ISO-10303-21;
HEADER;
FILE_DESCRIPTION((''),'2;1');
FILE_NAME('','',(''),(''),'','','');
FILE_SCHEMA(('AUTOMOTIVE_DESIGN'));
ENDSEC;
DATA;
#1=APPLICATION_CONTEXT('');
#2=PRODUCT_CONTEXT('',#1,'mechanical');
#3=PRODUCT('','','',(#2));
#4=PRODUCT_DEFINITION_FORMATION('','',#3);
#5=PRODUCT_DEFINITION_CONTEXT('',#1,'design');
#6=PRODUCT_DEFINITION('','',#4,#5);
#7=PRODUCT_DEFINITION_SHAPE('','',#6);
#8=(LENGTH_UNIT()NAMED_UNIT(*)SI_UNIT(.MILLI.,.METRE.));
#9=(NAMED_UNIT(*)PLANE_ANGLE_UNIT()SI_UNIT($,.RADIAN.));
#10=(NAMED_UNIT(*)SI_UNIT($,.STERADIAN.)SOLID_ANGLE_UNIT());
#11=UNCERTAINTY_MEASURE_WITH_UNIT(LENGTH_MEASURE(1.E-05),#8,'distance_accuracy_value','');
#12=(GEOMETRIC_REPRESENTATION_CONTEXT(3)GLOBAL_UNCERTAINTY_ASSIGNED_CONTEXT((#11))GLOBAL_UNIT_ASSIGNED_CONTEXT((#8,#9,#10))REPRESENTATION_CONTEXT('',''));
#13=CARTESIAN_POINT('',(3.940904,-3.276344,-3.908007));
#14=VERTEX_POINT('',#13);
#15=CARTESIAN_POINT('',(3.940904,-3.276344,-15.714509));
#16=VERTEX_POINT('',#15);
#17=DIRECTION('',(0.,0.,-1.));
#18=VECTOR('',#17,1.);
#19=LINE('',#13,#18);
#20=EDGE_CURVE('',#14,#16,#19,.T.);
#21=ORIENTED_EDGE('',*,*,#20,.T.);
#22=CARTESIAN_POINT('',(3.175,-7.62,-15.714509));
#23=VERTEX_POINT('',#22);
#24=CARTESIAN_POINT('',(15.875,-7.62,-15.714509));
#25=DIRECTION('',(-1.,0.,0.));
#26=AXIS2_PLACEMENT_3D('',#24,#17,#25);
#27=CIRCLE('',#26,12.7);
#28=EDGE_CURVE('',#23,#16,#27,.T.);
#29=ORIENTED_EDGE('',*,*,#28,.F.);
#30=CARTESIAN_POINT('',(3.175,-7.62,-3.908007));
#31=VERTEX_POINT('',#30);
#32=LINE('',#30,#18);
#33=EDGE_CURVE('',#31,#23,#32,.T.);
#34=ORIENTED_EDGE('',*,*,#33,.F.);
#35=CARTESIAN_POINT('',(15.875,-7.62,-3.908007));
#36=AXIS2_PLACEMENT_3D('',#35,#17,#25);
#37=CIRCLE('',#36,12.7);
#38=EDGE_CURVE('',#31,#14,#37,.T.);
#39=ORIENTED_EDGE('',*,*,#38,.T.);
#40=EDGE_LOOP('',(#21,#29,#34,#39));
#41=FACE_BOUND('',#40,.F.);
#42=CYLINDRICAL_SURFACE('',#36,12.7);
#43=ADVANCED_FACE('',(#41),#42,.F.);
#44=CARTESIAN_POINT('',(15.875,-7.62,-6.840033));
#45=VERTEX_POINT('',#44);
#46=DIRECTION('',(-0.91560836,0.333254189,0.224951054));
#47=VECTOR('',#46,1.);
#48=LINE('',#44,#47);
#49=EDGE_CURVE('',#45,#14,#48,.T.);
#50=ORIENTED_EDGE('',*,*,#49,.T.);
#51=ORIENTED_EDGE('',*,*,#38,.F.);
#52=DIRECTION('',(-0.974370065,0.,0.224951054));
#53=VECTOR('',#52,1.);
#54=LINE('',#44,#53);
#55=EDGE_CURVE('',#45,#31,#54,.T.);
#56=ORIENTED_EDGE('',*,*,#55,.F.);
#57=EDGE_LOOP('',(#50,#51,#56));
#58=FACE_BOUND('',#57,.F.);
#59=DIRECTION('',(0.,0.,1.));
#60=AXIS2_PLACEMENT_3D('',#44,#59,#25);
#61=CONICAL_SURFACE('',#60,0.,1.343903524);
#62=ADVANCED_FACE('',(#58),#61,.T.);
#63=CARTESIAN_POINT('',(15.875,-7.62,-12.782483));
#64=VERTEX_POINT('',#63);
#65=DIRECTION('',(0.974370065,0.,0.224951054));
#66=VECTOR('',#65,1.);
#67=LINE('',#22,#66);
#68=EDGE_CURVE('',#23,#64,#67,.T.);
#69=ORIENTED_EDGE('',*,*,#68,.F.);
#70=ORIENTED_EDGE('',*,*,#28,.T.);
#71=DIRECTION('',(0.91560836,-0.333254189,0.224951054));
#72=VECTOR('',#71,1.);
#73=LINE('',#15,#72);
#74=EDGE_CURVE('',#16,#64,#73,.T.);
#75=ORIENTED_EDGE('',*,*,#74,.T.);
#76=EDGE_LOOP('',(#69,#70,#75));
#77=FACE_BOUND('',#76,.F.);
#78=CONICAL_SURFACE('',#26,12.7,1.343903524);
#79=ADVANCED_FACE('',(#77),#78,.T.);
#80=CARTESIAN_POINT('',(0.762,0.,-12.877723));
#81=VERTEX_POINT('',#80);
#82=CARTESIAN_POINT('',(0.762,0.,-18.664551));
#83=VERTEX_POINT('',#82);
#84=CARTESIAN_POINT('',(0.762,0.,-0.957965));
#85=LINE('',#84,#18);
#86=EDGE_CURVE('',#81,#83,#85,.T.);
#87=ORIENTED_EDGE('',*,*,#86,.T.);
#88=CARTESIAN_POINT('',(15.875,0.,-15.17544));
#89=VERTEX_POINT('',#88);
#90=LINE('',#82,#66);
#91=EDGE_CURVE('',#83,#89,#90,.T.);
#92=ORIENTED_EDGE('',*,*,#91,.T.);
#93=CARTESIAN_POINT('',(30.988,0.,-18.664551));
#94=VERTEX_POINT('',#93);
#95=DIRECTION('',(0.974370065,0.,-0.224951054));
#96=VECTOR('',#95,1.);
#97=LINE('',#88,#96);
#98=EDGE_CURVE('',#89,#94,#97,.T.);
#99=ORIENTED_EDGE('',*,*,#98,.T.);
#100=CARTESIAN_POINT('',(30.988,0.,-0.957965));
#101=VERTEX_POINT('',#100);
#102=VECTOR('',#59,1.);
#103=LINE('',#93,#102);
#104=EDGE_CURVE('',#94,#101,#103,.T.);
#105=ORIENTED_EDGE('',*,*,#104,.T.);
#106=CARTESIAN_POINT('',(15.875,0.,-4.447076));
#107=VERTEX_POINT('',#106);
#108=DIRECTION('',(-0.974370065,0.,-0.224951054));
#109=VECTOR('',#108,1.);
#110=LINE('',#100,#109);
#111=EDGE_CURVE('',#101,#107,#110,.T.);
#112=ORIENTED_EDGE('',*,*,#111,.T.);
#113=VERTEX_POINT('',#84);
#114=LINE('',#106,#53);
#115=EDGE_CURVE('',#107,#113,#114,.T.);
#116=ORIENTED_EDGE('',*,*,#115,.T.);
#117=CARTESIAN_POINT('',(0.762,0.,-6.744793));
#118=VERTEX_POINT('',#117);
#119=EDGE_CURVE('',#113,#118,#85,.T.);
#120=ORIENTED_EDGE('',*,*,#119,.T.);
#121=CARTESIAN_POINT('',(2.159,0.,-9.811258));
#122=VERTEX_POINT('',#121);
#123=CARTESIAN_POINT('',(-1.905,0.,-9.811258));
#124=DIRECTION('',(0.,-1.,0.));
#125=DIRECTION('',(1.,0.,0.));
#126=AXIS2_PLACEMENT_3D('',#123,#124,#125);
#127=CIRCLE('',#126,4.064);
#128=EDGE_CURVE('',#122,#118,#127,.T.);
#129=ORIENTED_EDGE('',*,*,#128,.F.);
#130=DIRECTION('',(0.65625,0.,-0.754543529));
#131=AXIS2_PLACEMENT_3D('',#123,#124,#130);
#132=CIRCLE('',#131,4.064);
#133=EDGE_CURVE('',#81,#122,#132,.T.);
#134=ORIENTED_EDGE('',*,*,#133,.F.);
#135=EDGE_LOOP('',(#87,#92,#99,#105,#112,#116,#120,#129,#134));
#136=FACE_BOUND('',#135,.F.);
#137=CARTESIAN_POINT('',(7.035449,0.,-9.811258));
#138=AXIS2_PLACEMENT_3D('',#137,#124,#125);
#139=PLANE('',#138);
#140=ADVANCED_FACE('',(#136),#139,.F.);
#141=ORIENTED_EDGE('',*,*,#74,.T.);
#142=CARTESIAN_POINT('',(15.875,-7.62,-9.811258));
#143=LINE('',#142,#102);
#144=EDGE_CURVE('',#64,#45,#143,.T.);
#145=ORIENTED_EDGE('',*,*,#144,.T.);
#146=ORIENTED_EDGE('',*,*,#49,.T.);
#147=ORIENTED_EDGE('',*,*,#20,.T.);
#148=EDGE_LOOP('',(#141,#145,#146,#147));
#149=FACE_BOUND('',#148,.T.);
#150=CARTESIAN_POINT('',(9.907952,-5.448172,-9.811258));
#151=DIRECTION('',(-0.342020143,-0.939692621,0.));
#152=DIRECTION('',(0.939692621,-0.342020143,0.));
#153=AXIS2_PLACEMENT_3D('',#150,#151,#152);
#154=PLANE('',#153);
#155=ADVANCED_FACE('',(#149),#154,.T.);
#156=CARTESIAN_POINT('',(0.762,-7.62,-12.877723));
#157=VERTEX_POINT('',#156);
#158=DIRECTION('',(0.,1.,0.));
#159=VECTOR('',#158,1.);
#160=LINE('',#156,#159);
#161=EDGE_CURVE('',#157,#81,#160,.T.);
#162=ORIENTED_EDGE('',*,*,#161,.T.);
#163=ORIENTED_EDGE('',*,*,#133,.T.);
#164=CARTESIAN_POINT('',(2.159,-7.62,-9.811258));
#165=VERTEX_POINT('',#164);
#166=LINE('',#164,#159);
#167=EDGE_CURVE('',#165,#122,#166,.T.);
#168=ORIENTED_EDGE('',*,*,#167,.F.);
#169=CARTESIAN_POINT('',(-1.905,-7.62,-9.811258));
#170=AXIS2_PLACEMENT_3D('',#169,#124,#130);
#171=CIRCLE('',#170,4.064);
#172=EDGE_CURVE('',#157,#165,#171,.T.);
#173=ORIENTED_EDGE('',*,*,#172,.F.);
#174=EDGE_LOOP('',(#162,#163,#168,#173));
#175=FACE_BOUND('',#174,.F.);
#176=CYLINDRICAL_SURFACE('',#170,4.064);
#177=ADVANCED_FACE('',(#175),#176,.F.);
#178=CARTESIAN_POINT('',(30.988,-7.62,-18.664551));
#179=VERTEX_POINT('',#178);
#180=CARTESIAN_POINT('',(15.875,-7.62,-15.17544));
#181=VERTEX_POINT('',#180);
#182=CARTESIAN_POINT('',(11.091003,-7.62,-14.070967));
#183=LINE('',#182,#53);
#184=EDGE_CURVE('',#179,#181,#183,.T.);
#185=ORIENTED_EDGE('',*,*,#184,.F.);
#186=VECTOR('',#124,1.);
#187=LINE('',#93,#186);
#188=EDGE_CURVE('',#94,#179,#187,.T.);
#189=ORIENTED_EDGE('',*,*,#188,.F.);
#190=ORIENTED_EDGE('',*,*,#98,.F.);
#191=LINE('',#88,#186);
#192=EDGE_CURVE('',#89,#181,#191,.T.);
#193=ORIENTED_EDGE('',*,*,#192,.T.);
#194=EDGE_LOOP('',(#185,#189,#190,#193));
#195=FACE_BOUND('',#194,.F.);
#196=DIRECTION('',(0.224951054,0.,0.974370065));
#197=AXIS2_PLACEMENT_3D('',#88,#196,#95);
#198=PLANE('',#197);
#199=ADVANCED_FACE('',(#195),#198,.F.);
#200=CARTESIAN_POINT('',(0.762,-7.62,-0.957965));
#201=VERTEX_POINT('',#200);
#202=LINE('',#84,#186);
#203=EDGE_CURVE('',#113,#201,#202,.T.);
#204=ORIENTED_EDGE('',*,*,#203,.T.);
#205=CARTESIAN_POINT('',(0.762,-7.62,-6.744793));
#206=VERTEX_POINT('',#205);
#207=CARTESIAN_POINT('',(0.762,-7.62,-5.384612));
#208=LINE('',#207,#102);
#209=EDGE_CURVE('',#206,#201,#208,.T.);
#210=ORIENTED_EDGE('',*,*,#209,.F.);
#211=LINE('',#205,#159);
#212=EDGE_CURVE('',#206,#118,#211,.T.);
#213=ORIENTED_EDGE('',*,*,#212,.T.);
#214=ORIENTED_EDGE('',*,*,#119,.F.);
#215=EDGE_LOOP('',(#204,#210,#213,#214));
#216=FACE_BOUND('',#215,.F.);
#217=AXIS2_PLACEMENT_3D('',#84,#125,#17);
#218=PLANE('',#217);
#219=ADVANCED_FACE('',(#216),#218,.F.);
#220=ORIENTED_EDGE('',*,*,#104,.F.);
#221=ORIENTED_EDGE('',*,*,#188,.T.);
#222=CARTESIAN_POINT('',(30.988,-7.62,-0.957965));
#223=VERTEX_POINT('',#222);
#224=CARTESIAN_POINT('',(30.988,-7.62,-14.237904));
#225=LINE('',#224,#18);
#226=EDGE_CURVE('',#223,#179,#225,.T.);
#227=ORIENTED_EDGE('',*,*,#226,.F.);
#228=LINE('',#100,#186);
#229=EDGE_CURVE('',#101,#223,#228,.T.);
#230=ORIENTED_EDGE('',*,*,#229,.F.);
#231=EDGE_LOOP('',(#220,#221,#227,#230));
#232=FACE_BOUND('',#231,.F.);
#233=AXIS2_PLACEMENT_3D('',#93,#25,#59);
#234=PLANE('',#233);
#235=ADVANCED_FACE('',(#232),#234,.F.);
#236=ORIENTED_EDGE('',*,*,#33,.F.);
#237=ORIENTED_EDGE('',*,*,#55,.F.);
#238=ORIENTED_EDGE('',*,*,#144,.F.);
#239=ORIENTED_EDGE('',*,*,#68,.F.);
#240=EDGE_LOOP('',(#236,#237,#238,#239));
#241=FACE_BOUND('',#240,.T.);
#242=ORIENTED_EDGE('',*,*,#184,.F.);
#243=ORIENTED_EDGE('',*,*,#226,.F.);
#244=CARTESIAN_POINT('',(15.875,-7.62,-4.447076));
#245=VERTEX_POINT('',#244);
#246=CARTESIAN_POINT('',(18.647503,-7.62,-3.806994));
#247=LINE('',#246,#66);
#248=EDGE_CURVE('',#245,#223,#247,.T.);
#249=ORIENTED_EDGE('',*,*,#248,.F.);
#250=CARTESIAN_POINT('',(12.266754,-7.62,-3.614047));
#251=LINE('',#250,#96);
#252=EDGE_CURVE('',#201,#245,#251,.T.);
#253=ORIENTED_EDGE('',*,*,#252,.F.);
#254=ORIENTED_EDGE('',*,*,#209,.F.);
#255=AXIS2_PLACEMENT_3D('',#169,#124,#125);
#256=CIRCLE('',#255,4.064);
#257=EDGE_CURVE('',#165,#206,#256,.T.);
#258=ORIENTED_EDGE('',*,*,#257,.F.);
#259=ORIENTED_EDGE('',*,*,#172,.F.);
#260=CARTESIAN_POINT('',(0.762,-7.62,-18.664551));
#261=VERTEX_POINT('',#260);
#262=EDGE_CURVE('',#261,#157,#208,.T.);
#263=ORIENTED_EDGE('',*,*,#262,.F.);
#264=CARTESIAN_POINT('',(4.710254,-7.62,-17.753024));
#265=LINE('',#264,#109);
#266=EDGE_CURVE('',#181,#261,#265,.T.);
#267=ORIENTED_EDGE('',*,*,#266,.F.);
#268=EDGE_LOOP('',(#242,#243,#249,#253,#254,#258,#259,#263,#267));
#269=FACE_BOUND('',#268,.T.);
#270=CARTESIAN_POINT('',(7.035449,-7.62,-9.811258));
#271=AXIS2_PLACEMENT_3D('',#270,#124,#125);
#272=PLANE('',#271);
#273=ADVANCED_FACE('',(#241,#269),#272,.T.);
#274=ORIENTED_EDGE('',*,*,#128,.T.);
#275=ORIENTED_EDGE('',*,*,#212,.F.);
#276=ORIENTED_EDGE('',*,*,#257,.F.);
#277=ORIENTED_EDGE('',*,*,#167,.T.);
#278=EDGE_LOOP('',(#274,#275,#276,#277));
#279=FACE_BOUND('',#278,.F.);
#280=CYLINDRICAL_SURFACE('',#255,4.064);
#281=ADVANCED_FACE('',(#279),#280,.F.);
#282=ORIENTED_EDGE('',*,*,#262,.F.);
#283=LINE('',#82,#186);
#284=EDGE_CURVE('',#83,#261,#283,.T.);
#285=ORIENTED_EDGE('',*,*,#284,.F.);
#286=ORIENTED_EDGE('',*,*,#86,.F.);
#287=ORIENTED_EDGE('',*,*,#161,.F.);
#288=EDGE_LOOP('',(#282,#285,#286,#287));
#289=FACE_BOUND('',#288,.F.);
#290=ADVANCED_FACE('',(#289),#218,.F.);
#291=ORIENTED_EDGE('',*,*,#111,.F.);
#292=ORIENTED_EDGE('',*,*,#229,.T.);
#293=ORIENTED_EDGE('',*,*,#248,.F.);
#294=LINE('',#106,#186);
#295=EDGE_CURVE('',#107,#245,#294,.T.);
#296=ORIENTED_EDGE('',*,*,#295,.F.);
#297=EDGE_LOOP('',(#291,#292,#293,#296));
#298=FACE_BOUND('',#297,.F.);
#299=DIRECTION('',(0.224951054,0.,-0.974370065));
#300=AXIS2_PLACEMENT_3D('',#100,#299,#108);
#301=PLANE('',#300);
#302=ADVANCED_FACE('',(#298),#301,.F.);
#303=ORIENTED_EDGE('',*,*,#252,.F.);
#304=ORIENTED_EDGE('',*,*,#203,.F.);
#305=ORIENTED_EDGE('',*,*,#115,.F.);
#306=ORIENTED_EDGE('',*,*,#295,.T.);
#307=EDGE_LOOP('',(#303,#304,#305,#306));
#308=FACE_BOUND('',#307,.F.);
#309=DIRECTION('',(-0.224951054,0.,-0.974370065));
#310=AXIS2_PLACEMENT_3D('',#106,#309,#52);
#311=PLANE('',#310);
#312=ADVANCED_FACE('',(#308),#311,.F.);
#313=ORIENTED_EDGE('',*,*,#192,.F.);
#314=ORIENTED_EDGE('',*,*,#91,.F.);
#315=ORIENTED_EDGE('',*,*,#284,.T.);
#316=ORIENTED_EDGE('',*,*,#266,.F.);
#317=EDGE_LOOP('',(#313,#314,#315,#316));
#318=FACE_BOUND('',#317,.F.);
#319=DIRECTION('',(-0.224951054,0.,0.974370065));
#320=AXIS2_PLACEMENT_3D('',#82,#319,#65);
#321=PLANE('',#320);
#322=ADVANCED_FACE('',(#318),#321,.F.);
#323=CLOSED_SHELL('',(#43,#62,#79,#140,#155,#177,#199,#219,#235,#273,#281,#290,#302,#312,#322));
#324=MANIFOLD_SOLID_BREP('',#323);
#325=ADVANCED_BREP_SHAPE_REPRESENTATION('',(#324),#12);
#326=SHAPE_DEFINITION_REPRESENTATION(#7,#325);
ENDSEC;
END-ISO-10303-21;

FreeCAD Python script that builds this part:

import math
import FreeCAD as App
import Part
import Sketcher

V = App.Vector
Q = App.Units.Quantity


def add_polygon(sketch, points):
    """Adds a closed chain of lines whose ends are joined by coincident constraints."""
    first, n = sketch.GeometryCount, len(points)
    for a, b in zip(points, points[1:] + points[:1]):
        sketch.addGeometry(Part.LineSegment(App.Vector(*a, 0), App.Vector(*b, 0)), False)
    for i in range(n):
        sketch.addConstraint(Sketcher.Constraint("Coincident", first + i, 2, first + (i + 1) % n, 1))

doc = App.newDocument("Part")
body = doc.addObject("PartDesign::Body", "Body")

# Sketch on XZ plane
sketch1 = doc.addObject("Sketcher::SketchObject", "Sketch")
body.addObject(sketch1)
sketch1.AttachmentSupport = (doc.XZ_Plane, [""])
sketch1.MapMode = "FlatFace"
add_polygon(sketch1, [(16, -4), (0, 0), (0, -20), (16, -16), (32, -20), (32, 0)])  # lines 0-5
sketch1.addConstraint([
    Sketcher.Constraint("Vertical", 1),
    Sketcher.Constraint("Vertical", 4),
    Sketcher.Constraint("Coincident", 0, 2, -1, 1),
    Sketcher.Constraint("PointOnObject", 4, 2, -1),
    Sketcher.Constraint("Parallel", 0, 3),
    Sketcher.Constraint("Parallel", 2, 5),
    Sketcher.Constraint("Horizontal", 1, 2, 3, 2),
    Sketcher.Constraint("Vertical", 2, 2, 5, 2),
    Sketcher.Constraint("Angle", 0, Q("167 deg")),
    Sketcher.Constraint("DistanceX", -1, 1, 3, 2, Q("1.25 in")),
    Sketcher.Constraint("DistanceY", 1, 2, 1, 1, 19.622516),
])
pad1 = doc.addObject("PartDesign::Pad", "Pad")
body.addObject(pad1)
pad1.Profile = sketch1
pad1.Length = Q("0.3 in")

# Sketch on XZ plane
sketch2 = doc.addObject("Sketcher::SketchObject", "Sketch001")
body.addObject(sketch2)
sketch2.AttachmentSupport = (doc.XZ_Plane, [""])
sketch2.MapMode = "FlatFace"
sketch2.AttachmentOffset = App.Placement(V(0, 0, 0.3 * 25.4), App.Rotation())
add_polygon(sketch2, [(3, -16), (16, -13), (16, -7), (3, -4)])  # lines 0-3
sketch2.addGeometry(Part.LineSegment(V(16, -4, 0), V(16, -16, 0)), True)  # axis
sketch2.addConstraint([
    Sketcher.Constraint("Vertical", 1),
    Sketcher.Constraint("Vertical", 3),
    Sketcher.Constraint("Vertical", 4),
    Sketcher.Constraint("Horizontal", 2, 2, 4, 1),
    Sketcher.Constraint("Horizontal", 3, 2, 4, 2),
    Sketcher.Constraint("Vertical", 1, 2, 4, 1),
    Sketcher.Constraint("Equal", 0, 2),
    Sketcher.Constraint("Angle", 0, Q("13 deg")),
    Sketcher.Constraint("DistanceX", 2, 2, 1, 2, Q("0.5 in")),
    Sketcher.Constraint("DistanceX", -1, 1, 0, 2, Q("0.625 in")),
    Sketcher.Constraint("DistanceY", 1, 1, 1, 2, 5.942451),
    Sketcher.Constraint("DistanceY", 3, 2, -1, 1, 15.714509),
])
groove = doc.addObject("PartDesign::Groove", "Groove")
body.addObject(groove)
groove.Profile = sketch2
groove.ReferenceAxis = (sketch2, ["Axis0"])
groove.Angle = 20

# Sketch on XZ plane
sketch3 = doc.addObject("Sketcher::SketchObject", "Sketch002")
body.addObject(sketch3)
sketch3.AttachmentSupport = (doc.XZ_Plane, [""])
sketch3.MapMode = "FlatFace"
add_polygon(sketch3, [(0, -20), (0, 0), (16, -4), (32, 0), (32, -20), (16, -16)])  # lines 0-5
add_polygon(sketch3, [(1, -19), (16, -15), (31, -19), (31, -1), (16, -4), (1, -1)])  # lines 6-11
sketch3.addConstraint([
    Sketcher.Constraint("Vertical", 0),
    Sketcher.Constraint("Vertical", 3),
    Sketcher.Constraint("Vertical", 8),
    Sketcher.Constraint("Vertical", 11),
    Sketcher.Constraint("Coincident", 0, 2, -1, 1),
    Sketcher.Constraint("PointOnObject", 2, 2, -1),
    Sketcher.Constraint("Parallel", 1, 4),
    Sketcher.Constraint("Parallel", 2, 5),
    Sketcher.Constraint("Parallel", 5, 6),
    Sketcher.Constraint("Parallel", 4, 7),
    Sketcher.Constraint("Parallel", 6, 9),
    Sketcher.Constraint("Parallel", 7, 10),
    Sketcher.Constraint("Horizontal", 3, 2, 5, 2),
    Sketcher.Constraint("Horizontal", 8, 2, 10, 2),
    Sketcher.Constraint("Horizontal", 7, 2, 11, 2),
    Sketcher.Constraint("Vertical", 1, 2, 4, 2),
    Sketcher.Constraint("Vertical", 4, 2, 6, 2),
    Sketcher.Constraint("Angle", 1, Q("-13 deg")),
    Sketcher.Constraint("DistanceX", -1, 1, 2, 2, Q("1.25 in")),
    Sketcher.Constraint("DistanceX", -1, 1, 7, 2, Q("1.22 in")),
    Sketcher.Constraint("DistanceY", 0, 1, 0, 2, 19.622516),
    Sketcher.Constraint("DistanceY", 8, 1, 8, 2, 17.706585),
    Sketcher.Constraint("DistanceY", 6, 2, -1, 1, 15.17544),
])
pocket1 = doc.addObject("PartDesign::Pocket", "Pocket")
body.addObject(pocket1)
pocket1.Profile = sketch3
pocket1.Length = Q("1 in")
pocket1.Reversed = True

# Sketch on XZ plane
sketch4 = doc.addObject("Sketcher::SketchObject", "Sketch003")
body.addObject(sketch4)
sketch4.AttachmentSupport = (doc.XZ_Plane, [""])
sketch4.MapMode = "FlatFace"
sketch4.AttachmentOffset = App.Placement(V(0, 0, 0.3 * 25.4), App.Rotation())
sketch4.addGeometry([
    Part.ArcOfCircle(Part.Circle(V(-1.9, -9.8, 0), V(0, 0, 1), 4.1), math.radians(-49), math.radians(0)),
    Part.ArcOfCircle(Part.Circle(V(-1.9, -9.8, 0), V(0, 0, 1), 4.1), math.radians(0), math.radians(49)),
    Part.LineSegment(V(0.8, -6.7, 0), V(0.8, -12.9, 0)),
], False)
sketch4.addConstraint([
    Sketcher.Constraint("Tangent", 0, 2, 1, 1),
    Sketcher.Constraint("Coincident", 1, 2, 2, 1),
    Sketcher.Constraint("Coincident", 2, 2, 0, 1),
    Sketcher.Constraint("Vertical", 2),
    Sketcher.Constraint("Equal", 0, 1),
    Sketcher.Constraint("Horizontal", 1, 3, 0, 2),
    Sketcher.Constraint("Radius", 0, Q("0.16 in")),
    Sketcher.Constraint("DistanceX", -1, 1, 1, 2, Q("0.03 in")),
    Sketcher.Constraint("DistanceX", 0, 3, -1, 1, Q("0.075 in")),
    Sketcher.Constraint("DistanceY", 0, 3, -1, 1, 9.811258),
])
pocket2 = doc.addObject("PartDesign::Pocket", "Pocket001")
body.addObject(pocket2)
pocket2.Profile = sketch4
pocket2.Length = Q("1 in")

doc.recompute()
